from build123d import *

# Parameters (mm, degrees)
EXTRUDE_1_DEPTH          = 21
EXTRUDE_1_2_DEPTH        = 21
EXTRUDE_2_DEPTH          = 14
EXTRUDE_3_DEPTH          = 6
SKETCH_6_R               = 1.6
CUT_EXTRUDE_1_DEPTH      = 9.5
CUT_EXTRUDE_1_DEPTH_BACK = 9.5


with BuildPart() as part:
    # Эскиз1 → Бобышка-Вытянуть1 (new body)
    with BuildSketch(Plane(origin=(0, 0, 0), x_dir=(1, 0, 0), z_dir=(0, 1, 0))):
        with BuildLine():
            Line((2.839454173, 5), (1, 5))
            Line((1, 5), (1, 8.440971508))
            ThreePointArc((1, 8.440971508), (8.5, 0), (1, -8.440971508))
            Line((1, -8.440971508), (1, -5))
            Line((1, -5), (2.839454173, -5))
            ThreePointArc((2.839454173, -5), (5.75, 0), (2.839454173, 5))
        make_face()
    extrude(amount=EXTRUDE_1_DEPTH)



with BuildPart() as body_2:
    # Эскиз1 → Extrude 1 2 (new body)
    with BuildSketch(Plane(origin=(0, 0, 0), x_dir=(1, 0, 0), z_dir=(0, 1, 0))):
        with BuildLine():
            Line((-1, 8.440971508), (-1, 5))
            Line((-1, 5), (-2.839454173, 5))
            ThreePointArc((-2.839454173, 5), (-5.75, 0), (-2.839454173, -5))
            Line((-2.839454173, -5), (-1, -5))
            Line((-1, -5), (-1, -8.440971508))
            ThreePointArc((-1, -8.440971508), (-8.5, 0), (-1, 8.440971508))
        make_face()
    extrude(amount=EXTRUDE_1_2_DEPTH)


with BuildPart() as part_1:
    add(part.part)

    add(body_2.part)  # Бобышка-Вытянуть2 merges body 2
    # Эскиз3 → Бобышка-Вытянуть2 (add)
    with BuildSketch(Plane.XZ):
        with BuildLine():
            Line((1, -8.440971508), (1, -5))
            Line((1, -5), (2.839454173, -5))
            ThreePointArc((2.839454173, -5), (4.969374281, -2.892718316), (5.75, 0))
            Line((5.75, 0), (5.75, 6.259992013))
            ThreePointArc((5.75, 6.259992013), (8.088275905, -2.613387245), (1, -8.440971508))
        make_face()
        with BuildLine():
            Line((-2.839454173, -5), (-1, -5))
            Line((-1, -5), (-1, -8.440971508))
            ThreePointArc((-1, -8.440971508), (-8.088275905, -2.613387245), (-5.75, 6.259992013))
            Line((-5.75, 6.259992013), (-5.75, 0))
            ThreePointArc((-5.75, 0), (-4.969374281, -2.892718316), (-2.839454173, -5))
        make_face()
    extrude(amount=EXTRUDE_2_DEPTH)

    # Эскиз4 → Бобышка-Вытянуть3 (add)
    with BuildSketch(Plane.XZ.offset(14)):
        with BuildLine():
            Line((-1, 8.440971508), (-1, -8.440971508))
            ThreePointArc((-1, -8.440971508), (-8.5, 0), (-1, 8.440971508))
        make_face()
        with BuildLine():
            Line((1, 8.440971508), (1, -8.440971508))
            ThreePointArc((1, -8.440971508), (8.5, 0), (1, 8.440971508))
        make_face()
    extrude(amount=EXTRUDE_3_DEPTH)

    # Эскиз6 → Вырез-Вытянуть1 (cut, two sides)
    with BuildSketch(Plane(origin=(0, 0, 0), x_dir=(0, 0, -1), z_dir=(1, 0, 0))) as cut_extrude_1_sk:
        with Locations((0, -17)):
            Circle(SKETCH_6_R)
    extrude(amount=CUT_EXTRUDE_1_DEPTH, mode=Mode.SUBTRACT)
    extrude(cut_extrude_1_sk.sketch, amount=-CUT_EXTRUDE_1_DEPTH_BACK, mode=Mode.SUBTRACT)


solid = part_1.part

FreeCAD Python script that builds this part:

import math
import FreeCAD as App
import Part
import Sketcher

V = App.Vector

doc = App.newDocument("Part")
body = doc.addObject("PartDesign::Body", "Body")

# Sketch on XZ plane
sketch1 = body.newObject("Sketcher::SketchObject", "Sketch")
sketch1.AttachmentSupport = (doc.getObject("XZ_Plane"), [""])
sketch1.MapMode = "FlatFace"
sketch1.addGeometry([
    Part.LineSegment(V(1, -5, 0), V(2.839454, -5, 0)),  # 0
    Part.ArcOfCircle(Part.Circle(V(0, 0, 0), V(0, 0, 1), 5.75), math.radians(-60.408154), math.radians(60.408154)),  # 1
    Part.LineSegment(V(2.839454, 5, 0), V(1, 5, 0)),  # 2
    Part.LineSegment(V(1, 5, 0), V(1, 8.440972, 0)),  # 3
    Part.ArcOfCircle(Part.Circle(V(0, 0, 0), V(0, 0, 1), 8.5), math.radians(-83.243673), math.radians(83.243673)),  # 4
    Part.LineSegment(V(1, -8.440972, 0), V(1, -5, 0)),  # 5
], False)
sketch1.addConstraint([
    Sketcher.Constraint("Coincident", 0, 2, 1, 1),
    Sketcher.Constraint("Coincident", 1, 2, 2, 1),
    Sketcher.Constraint("Coincident", 2, 2, 3, 1),
    Sketcher.Constraint("Coincident", 3, 2, 4, 2),
    Sketcher.Constraint("Coincident", 4, 1, 5, 1),
    Sketcher.Constraint("Coincident", 5, 2, 0, 1),
    Sketcher.Constraint("Horizontal", 0),
    Sketcher.Constraint("Horizontal", 2),
    Sketcher.Constraint("Vertical", 3),
    Sketcher.Constraint("Vertical", 5),
    Sketcher.Constraint("Coincident", 1, 3, -1, 1),
    Sketcher.Constraint("Coincident", 4, 3, -1, 1),
    Sketcher.Constraint("Symmetric", 2, 2, 5, 2, -1),
    Sketcher.Constraint("Radius", 4, 8.5),
    Sketcher.Constraint("Radius", 1, 5.75),
    Sketcher.Constraint("DistanceY", 0, 2, -1, 1, 5.0),
    Sketcher.Constraint("DistanceX", -1, 1, 2, 2, 1.0),
])
pad1 = body.newObject("PartDesign::Pad", "Pad")
pad1.Profile = sketch1
pad1.Length = 21
pad1.Reversed = True
body2 = doc.addObject("PartDesign::Body", "Body001")

# Sketch on XZ plane
sketch2 = body2.newObject("Sketcher::SketchObject", "Sketch001")
sketch2.AttachmentSupport = (doc.getObject("XZ_Plane001"), [""])
sketch2.MapMode = "FlatFace"
sketch2.addGeometry([
    Part.LineSegment(V(-1, -5, 0), V(-1, -8.440972, 0)),  # 0
    Part.ArcOfCircle(Part.Circle(V(0, 0, 0), V(0, 0, 1), 8.5), math.radians(96.756327), math.radians(263.243673)),  # 1
    Part.LineSegment(V(-1, 8.440972, 0), V(-1, 5, 0)),  # 2
    Part.LineSegment(V(-1, 5, 0), V(-2.839454, 5, 0)),  # 3
    Part.ArcOfCircle(Part.Circle(V(0, 0, 0), V(0, 0, 1), 5.75), math.radians(119.591846), math.radians(240.408154)),  # 4
    Part.LineSegment(V(-2.839454, -5, 0), V(-1, -5, 0)),  # 5
], False)
sketch2.addConstraint([
    Sketcher.Constraint("Coincident", 0, 2, 1, 2),
    Sketcher.Constraint("Coincident", 1, 1, 2, 1),
    Sketcher.Constraint("Coincident", 2, 2, 3, 1),
    Sketcher.Constraint("Coincident", 3, 2, 4, 1),
    Sketcher.Constraint("Coincident", 4, 2, 5, 1),
    Sketcher.Constraint("Coincident", 5, 2, 0, 1),
    Sketcher.Constraint("Vertical", 0),
    Sketcher.Constraint("Vertical", 2),
    Sketcher.Constraint("Horizontal", 3),
    Sketcher.Constraint("Horizontal", 5),
    Sketcher.Constraint("Coincident", 1, 3, -1, 1),
    Sketcher.Constraint("Coincident", 4, 3, -1, 1),
    Sketcher.Constraint("Symmetric", 2, 2, 5, 2, -1),
    Sketcher.Constraint("Radius", 1, 8.5),
    Sketcher.Constraint("Radius", 4, 5.75),
    Sketcher.Constraint("DistanceX", 0, 2, -1, 1, 1.0),
    Sketcher.Constraint("DistanceY", -1, 1, 2, 2, 5.0),
])
pad2 = body2.newObject("PartDesign::Pad", "Pad001")
pad2.Profile = sketch2
pad2.Length = 21
pad2.Reversed = True
body.AllowCompound = True
doc.recompute()

boolean = body.newObject("PartDesign::Boolean", "Boolean")
boolean.Type = "Fuse"
boolean.addObjects([body2])

# Sketch on XZ plane
sketch3 = body.newObject("Sketcher::SketchObject", "Sketch002")
sketch3.AttachmentSupport = (doc.getObject("XZ_Plane"), [""])
sketch3.MapMode = "FlatFace"
sketch3.addGeometry([
    Part.LineSegment(V(1, -5, 0), V(1, -8.440972, 0)),  # 0
    Part.ArcOfCircle(Part.Circle(V(0, 0, 0), V(0, 0, 1), 8.5), math.radians(-83.243673), math.radians(47.431546)),  # 1
    Part.LineSegment(V(5.75, 6.259992, 0), V(5.75, 0, 0)),  # 2
    Part.ArcOfCircle(Part.Circle(V(0, 0, 0), V(0, 0, 1), 5.75), math.radians(-60.408154), math.radians(0)),  # 3
    Part.LineSegment(V(2.839454, -5, 0), V(1, -5, 0)),  # 4
    Part.LineSegment(V(-1, -5, 0), V(-2.839454, -5, 0)),  # 5
    Part.ArcOfCircle(Part.Circle(V(0, 0, 0), V(0, 0, 1), 5.75), math.radians(180), math.radians(240.408154)),  # 6
    Part.LineSegment(V(-5.75, 0, 0), V(-5.75, 6.259992, 0)),  # 7
    Part.ArcOfCircle(Part.Circle(V(0, 0, 0), V(0, 0, 1), 8.5), math.radians(132.568454), math.radians(263.243673)),  # 8
    Part.LineSegment(V(-1, -8.440972, 0), V(-1, -5, 0)),  # 9
], False)
sketch3.addConstraint([
    Sketcher.Constraint("Coincident", 0, 2, 1, 1),
    Sketcher.Constraint("Coincident", 1, 2, 2, 1),
    Sketcher.Constraint("Tangent", 2, 2, 3, 2),
    Sketcher.Constraint("Coincident", 3, 1, 4, 1),
    Sketcher.Constraint("Coincident", 4, 2, 0, 1),
    Sketcher.Constraint("Coincident", 5, 2, 6, 2),
    Sketcher.Constraint("Tangent", 6, 1, 7, 1),
    Sketcher.Constraint("Coincident", 7, 2, 8, 1),
    Sketcher.Constraint("Coincident", 8, 2, 9, 1),
    Sketcher.Constraint("Coincident", 9, 2, 5, 1),
    Sketcher.Constraint("Vertical", 0),
    Sketcher.Constraint("Vertical", 2),
    Sketcher.Constraint("Horizontal", 4),
    Sketcher.Constraint("Horizontal", 5),
    Sketcher.Constraint("Vertical", 7),
    Sketcher.Constraint("Vertical", 9),
    Sketcher.Constraint("Coincident", 1, 3, -1, 1),
    Sketcher.Constraint("Coincident", 3, 3, -1, 1),
    Sketcher.Constraint("Coincident", 6, 3, -1, 1),
    Sketcher.Constraint("Coincident", 8, 3, -1, 1),
    Sketcher.Constraint("Equal", 3, 6),
    Sketcher.Constraint("Equal", 1, 8),
    Sketcher.Constraint("Symmetric", 4, 2, 9, 2, -2),
    Sketcher.Constraint("Radius", 1, 8.5),
    Sketcher.Constraint("Radius", 3, 5.75),
    Sketcher.Constraint("DistanceX", -1, 1, 0, 2, 1.0),
    Sketcher.Constraint("DistanceY", 3, 1, -1, 1, 5.0),
])
pad3 = body.newObject("PartDesign::Pad", "Pad002")
pad3.Profile = sketch3
pad3.Length = 14

# Sketch on XZ plane
sketch4 = body.newObject("Sketcher::SketchObject", "Sketch003")
sketch4.AttachmentSupport = (doc.getObject("XZ_Plane"), [""])
sketch4.MapMode = "FlatFace"
sketch4.AttachmentOffset = App.Placement(V(0, 0, 14), App.Rotation())
sketch4.addGeometry([
    Part.LineSegment(V(-1, -8.440972, 0), V(-1, 8.440972, 0)),
    Part.ArcOfCircle(Part.Circle(V(0, 0, 0), V(0, 0, 1), 8.5), math.radians(96.756327), math.radians(263.243673)),
    Part.LineSegment(V(1, 8.440972, 0), V(1, -8.440972, 0)),
    Part.ArcOfCircle(Part.Circle(V(0, 0, 0), V(0, 0, 1), 8.5), math.radians(-83.243673), math.radians(83.243673)),
], False)
sketch4.addConstraint([
    Sketcher.Constraint("Coincident", 0, 1, 1, 2),
    Sketcher.Constraint("Coincident", 1, 1, 0, 2),
    Sketcher.Constraint("Coincident", 2, 1, 3, 2),
    Sketcher.Constraint("Coincident", 3, 1, 2, 2),
    Sketcher.Constraint("Vertical", 0),
    Sketcher.Constraint("Vertical", 2),
    Sketcher.Constraint("Coincident", 1, 3, -1, 1),
    Sketcher.Constraint("Coincident", 3, 3, -1, 1),
    Sketcher.Constraint("Equal", 1, 3),
    Sketcher.Constraint("Horizontal", 1, 1, 2, 1),
    Sketcher.Constraint("Radius", 1, 8.5),
    Sketcher.Constraint("DistanceX", 0, 1, -1, 1, 1.0),
])
pad4 = body.newObject("PartDesign::Pad", "Pad003")
pad4.Profile = sketch4
pad4.Length = 6

# Sketch on YZ plane
sketch5 = body.newObject("Sketcher::SketchObject", "Sketch004")
sketch5.AttachmentSupport = (doc.getObject("YZ_Plane"), [""])
sketch5.MapMode = "FlatFace"
sketch5.addGeometry(Part.Circle(V(-17, 0, 0), V(0, 0, 1), 1.6), False)
sketch5.addConstraint([
    Sketcher.Constraint("PointOnObject", 0, 3, -1),
    Sketcher.Constraint("Diameter", 0, 3.2),
    Sketcher.Constraint("DistanceX", 0, 3, -1, 1, 17.0),
])
pocket1 = body.newObject("PartDesign::Pocket", "Pocket")
pocket1.Profile = sketch5
pocket1.Type = "ThroughAll"
pocket1.Midplane = True

doc.recompute()
